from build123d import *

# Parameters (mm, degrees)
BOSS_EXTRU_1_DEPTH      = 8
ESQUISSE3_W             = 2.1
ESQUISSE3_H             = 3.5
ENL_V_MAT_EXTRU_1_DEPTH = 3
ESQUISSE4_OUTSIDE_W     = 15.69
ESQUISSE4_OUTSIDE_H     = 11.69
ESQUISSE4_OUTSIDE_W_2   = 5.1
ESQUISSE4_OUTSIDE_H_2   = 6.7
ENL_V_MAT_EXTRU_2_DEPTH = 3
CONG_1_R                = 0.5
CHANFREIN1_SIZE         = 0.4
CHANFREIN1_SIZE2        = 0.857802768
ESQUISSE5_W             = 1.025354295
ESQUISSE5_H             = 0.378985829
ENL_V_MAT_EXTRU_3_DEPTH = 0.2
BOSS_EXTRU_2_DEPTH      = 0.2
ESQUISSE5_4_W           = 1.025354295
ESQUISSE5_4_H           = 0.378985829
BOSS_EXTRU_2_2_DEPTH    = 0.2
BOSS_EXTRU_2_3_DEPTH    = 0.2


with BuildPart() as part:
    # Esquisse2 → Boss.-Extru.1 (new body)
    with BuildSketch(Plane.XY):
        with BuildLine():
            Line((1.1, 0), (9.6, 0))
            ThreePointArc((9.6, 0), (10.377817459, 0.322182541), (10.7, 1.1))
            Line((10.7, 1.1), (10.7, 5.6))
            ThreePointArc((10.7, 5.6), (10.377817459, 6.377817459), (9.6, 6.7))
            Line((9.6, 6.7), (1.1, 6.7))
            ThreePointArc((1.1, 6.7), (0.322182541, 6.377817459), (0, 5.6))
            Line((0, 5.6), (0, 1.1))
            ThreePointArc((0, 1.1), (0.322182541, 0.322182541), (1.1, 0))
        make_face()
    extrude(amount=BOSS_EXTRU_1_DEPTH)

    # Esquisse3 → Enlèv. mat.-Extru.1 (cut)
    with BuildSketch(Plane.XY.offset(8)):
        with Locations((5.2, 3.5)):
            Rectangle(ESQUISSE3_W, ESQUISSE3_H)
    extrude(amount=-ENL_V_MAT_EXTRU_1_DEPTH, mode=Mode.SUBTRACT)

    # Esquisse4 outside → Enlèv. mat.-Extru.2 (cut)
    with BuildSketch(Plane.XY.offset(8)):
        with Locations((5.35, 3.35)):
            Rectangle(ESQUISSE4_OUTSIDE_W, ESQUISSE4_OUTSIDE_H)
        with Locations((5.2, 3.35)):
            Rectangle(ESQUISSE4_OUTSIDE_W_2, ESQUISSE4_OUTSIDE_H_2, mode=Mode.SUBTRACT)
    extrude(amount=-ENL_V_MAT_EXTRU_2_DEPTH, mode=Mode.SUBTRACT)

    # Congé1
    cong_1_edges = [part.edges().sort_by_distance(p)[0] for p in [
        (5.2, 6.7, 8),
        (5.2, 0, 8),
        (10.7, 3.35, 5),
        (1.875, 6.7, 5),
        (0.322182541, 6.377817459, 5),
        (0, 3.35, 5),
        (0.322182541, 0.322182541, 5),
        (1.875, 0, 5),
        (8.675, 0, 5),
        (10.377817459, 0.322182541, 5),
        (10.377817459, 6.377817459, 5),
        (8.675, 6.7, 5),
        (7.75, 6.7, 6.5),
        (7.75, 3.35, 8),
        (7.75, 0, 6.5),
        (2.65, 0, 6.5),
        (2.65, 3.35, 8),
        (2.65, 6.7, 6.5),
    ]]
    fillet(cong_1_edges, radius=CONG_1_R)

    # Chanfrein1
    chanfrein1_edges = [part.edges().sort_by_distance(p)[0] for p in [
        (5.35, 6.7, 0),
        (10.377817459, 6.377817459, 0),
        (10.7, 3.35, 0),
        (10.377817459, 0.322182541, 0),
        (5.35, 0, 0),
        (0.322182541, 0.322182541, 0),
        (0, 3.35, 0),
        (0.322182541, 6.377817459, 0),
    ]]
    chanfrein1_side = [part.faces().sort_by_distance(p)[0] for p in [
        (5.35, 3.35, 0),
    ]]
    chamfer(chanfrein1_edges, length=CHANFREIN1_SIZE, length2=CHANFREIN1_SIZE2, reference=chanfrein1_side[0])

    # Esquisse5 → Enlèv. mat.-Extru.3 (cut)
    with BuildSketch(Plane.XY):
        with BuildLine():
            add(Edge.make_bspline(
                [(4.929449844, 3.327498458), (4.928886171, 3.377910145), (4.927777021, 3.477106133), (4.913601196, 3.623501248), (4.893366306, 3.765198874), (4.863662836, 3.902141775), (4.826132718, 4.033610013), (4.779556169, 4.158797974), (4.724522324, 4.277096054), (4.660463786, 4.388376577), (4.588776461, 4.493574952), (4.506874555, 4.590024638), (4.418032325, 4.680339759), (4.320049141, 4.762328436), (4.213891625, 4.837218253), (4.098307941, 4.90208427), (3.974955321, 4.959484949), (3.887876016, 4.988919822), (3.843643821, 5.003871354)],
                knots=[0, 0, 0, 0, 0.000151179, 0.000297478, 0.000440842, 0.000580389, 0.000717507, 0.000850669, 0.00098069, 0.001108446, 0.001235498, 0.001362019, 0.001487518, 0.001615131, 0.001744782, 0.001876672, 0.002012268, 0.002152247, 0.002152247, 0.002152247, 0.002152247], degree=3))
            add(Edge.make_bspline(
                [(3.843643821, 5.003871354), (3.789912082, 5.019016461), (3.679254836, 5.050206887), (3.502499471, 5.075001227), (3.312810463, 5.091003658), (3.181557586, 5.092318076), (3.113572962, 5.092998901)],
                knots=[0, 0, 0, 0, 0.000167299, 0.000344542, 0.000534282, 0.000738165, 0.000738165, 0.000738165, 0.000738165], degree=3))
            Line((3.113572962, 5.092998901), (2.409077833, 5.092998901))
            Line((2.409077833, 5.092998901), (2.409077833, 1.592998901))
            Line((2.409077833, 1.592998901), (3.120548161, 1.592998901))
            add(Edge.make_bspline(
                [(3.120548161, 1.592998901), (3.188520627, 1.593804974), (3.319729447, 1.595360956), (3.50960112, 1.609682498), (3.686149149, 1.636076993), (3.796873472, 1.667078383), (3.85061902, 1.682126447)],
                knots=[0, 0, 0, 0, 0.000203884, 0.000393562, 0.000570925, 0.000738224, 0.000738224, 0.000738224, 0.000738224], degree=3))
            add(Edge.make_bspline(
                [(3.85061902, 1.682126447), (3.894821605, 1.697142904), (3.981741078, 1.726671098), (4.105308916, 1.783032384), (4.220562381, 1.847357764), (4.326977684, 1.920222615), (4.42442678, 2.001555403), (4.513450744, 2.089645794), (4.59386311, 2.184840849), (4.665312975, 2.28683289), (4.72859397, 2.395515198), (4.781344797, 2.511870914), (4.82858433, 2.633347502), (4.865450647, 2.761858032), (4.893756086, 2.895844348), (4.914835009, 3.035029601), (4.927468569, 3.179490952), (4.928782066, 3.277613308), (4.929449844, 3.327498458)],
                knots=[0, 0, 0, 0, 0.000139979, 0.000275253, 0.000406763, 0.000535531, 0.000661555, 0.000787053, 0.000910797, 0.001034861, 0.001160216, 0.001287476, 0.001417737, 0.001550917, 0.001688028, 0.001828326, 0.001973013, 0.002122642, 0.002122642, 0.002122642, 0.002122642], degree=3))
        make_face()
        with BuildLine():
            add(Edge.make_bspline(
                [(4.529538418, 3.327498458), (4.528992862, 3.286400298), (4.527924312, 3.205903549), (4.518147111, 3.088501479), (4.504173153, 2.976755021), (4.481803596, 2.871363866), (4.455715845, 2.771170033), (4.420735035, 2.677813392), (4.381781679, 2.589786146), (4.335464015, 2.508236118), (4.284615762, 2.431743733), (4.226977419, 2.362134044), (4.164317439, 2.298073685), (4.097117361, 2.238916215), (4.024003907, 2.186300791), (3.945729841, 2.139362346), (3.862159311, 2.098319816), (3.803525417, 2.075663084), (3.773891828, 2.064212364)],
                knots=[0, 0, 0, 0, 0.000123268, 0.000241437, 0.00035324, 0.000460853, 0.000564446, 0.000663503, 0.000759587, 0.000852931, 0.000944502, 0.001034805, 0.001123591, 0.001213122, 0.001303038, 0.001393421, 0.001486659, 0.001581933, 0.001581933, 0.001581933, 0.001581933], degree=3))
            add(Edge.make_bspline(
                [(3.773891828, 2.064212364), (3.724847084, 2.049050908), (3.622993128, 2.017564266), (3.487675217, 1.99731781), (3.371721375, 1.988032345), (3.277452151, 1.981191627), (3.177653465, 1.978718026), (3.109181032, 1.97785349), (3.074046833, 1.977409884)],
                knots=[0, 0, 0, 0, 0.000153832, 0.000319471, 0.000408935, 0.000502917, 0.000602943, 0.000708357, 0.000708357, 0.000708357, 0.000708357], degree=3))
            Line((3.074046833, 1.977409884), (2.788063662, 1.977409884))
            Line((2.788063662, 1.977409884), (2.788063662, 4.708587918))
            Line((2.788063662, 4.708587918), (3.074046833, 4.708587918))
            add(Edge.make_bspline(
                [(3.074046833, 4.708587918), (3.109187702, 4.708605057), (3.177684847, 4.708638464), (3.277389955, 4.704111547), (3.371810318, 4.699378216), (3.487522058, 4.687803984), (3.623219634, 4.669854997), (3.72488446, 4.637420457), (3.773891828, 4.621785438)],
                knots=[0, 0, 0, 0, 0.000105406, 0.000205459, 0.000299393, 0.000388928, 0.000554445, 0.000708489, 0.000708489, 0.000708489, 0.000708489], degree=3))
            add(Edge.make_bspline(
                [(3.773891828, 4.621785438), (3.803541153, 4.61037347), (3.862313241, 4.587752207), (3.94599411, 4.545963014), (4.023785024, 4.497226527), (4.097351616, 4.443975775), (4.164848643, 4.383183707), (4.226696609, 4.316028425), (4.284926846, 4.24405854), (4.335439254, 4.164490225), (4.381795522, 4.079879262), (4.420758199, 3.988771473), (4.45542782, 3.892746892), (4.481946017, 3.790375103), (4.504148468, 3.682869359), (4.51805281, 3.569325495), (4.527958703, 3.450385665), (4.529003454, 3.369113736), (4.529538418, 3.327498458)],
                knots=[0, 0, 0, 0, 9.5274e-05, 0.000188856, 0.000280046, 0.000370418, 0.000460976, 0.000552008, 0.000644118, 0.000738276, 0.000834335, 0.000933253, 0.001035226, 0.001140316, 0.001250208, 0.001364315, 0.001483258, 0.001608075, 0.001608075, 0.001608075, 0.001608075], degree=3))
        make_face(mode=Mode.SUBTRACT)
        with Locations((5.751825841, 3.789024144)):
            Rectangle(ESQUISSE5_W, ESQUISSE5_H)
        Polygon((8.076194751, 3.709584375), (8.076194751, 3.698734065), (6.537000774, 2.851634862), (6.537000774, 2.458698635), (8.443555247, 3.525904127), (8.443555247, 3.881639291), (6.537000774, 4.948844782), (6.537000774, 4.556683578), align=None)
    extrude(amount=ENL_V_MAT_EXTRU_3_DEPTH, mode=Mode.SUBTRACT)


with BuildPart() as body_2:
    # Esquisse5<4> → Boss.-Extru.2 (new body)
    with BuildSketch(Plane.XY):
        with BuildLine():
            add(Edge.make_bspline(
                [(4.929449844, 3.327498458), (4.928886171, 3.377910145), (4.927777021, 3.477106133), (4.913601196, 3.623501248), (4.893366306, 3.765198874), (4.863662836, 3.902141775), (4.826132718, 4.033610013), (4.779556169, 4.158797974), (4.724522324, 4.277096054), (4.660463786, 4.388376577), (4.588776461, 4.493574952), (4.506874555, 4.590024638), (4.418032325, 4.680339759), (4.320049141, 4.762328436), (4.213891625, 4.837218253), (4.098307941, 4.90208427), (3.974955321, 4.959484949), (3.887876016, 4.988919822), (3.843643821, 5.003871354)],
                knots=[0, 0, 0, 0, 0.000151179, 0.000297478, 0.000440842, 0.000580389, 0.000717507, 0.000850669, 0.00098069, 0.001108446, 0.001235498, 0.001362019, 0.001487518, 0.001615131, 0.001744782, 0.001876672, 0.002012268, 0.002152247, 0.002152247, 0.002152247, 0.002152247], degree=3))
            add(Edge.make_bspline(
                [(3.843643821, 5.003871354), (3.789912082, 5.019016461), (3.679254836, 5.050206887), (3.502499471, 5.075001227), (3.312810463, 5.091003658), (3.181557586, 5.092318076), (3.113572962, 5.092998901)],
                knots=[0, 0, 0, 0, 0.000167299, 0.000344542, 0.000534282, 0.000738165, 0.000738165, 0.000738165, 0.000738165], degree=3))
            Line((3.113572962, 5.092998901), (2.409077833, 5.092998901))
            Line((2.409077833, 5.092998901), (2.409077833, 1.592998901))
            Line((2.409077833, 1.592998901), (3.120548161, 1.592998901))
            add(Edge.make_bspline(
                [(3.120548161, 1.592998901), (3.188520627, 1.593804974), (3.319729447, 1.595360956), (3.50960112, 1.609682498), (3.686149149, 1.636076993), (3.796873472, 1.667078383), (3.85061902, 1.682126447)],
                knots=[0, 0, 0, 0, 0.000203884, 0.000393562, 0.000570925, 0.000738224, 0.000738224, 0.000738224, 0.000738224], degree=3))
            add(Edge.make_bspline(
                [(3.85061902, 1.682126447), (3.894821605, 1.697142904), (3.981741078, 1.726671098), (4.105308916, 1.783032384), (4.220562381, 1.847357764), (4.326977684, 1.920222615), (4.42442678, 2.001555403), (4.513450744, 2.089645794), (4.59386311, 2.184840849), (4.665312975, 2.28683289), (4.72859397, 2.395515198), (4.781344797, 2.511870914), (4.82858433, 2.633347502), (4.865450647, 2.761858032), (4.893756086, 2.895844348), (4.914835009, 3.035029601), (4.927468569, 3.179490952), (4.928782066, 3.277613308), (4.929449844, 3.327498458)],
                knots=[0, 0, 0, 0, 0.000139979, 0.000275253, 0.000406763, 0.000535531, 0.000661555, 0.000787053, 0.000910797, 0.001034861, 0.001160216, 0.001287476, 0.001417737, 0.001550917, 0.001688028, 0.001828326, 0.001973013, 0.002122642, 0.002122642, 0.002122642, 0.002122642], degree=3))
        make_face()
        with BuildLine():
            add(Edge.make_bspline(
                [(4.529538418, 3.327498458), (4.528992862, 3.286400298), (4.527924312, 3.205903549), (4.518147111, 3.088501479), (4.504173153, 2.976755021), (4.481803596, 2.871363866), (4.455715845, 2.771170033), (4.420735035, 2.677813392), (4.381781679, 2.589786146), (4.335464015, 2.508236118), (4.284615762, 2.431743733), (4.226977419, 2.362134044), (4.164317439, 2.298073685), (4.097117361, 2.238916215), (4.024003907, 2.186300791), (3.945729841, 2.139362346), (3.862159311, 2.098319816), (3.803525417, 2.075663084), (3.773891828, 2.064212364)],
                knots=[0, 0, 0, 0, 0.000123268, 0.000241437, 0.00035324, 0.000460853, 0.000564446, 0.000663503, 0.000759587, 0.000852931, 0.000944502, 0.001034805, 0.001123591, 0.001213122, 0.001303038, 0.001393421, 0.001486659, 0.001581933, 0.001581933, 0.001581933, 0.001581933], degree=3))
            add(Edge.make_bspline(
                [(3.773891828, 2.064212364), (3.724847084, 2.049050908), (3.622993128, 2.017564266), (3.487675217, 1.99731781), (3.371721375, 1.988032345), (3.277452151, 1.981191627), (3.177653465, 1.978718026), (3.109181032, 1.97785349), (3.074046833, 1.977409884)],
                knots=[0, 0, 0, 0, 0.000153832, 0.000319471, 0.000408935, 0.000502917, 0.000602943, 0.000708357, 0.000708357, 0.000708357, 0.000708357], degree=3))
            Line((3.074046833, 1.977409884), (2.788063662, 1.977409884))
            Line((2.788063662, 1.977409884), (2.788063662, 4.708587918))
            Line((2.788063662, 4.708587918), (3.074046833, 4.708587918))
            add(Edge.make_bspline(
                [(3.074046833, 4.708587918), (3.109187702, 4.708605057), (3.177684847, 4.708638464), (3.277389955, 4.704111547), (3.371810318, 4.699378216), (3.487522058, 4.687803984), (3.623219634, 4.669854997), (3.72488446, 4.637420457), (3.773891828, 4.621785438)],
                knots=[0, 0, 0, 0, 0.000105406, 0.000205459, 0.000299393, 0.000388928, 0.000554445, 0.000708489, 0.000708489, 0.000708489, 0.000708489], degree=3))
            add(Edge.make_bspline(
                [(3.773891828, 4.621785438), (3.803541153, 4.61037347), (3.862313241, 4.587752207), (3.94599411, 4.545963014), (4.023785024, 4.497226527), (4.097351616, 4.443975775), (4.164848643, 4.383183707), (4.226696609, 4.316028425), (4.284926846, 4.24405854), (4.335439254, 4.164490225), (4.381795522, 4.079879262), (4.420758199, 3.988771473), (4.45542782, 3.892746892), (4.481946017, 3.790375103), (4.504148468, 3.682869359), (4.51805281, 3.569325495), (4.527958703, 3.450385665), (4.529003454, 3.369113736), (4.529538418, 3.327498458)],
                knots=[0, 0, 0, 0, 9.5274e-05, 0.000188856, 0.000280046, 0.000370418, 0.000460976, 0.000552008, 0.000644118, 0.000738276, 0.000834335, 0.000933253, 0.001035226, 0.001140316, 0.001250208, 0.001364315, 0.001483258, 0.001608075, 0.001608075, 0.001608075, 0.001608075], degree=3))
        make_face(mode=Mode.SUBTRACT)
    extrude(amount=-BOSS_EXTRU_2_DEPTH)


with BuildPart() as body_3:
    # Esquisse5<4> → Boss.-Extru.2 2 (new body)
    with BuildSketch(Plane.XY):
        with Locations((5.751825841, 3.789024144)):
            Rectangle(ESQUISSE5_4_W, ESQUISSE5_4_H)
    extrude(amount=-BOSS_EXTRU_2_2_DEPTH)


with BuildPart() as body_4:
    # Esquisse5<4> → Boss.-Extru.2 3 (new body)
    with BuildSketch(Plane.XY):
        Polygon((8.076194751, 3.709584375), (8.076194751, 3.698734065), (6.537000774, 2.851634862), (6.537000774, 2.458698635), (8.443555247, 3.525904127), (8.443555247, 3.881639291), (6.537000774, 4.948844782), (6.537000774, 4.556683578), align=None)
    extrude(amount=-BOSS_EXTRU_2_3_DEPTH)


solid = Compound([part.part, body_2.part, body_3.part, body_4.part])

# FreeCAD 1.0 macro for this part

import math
import FreeCAD as App
import Part
import Sketcher

V = App.Vector
Q = App.Units.Quantity


def edges_at(feature, points):
    """Names of the edges that pass closest to the given points."""
    edges = feature.Shape.Edges
    near = lambda p: min(range(len(edges)), key=lambda i: edges[i].distToShape(Part.Vertex(*p))[0])
    return sorted({f"Edge{near(p) + 1}" for p in points})


def add_polygon(sketch, points):
    """Adds a closed chain of lines whose ends are joined by coincident constraints."""
    first, n = sketch.GeometryCount, len(points)
    for a, b in zip(points, points[1:] + points[:1]):
        sketch.addGeometry(Part.LineSegment(App.Vector(*a, 0), App.Vector(*b, 0)), False)
    for i in range(n):
        sketch.addConstraint(Sketcher.Constraint("Coincident", first + i, 2, first + (i + 1) % n, 1))

doc = App.newDocument("Part")
body = doc.addObject("PartDesign::Body", "Body")

# Sketch on XY plane
sketch1 = body.newObject("Sketcher::SketchObject", "Sketch")
sketch1.AttachmentSupport = (doc.getObject("XY_Plane"), [""])
sketch1.MapMode = "FlatFace"
sketch1.addGeometry([
    Part.LineSegment(V(1.1, 0, 0), V(9.6, 0, 0)),  # 0
    Part.ArcOfCircle(Part.Circle(V(9.6, 1.1, 0), V(0, 0, 1), 1.1), math.radians(-90), math.radians(0)),  # 1
    Part.LineSegment(V(10.7, 1.1, 0), V(10.7, 5.6, 0)),  # 2
    Part.ArcOfCircle(Part.Circle(V(9.6, 5.6, 0), V(0, 0, 1), 1.1), math.radians(0), math.radians(90)),  # 3
    Part.LineSegment(V(9.6, 6.7, 0), V(1.1, 6.7, 0)),  # 4
    Part.ArcOfCircle(Part.Circle(V(1.1, 5.6, 0), V(0, 0, 1), 1.1), math.radians(90), math.radians(180)),  # 5
    Part.LineSegment(V(0, 5.6, 0), V(0, 1.1, 0)),  # 6
    Part.ArcOfCircle(Part.Circle(V(1.1, 1.1, 0), V(0, 0, 1), 1.1), math.radians(-180), math.radians(-90)),  # 7
], False)
sketch1.addConstraint([
    Sketcher.Constraint("Tangent", 0, 2, 1, 1),
    Sketcher.Constraint("Tangent", 1, 2, 2, 1),
    Sketcher.Constraint("Tangent", 2, 2, 3, 1),
    Sketcher.Constraint("Tangent", 3, 2, 4, 1),
    Sketcher.Constraint("Tangent", 4, 2, 5, 1),
    Sketcher.Constraint("Tangent", 5, 2, 6, 1),
    Sketcher.Constraint("Tangent", 6, 2, 7, 1),
    Sketcher.Constraint("Tangent", 7, 2, 0, 1),
    Sketcher.Constraint("Horizontal", 0),
    Sketcher.Constraint("Vertical", 2),
    Sketcher.Constraint("Horizontal", 4),
    Sketcher.Constraint("Vertical", 6),
    Sketcher.Constraint("Equal", 1, 3),
    Sketcher.Constraint("Equal", 3, 5),
    Sketcher.Constraint("Equal", 5, 7),
    Sketcher.Constraint("PointOnObject", 0, 2, -1),
    Sketcher.Constraint("PointOnObject", 5, 2, -2),
    Sketcher.Constraint("Radius", 1, Q("1.1 mm")),
    Sketcher.Constraint("DistanceX", 0, 1, 0, 2, Q("8.5 mm")),
    Sketcher.Constraint("DistanceY", 2, 1, 2, 2, Q("4.5 mm")),
])
pad1 = body.newObject("PartDesign::Pad", "Pad")
pad1.Profile = sketch1
pad1.Length = 8

# Sketch on XY plane
sketch2 = body.newObject("Sketcher::SketchObject", "Sketch001")
sketch2.AttachmentSupport = (doc.getObject("XY_Plane"), [""])
sketch2.MapMode = "FlatFace"
sketch2.AttachmentOffset = App.Placement(V(0, 0, 8), App.Rotation())
add_polygon(sketch2, [(4.2, 5.2), (4.2, 1.8), (6.2, 1.8), (6.2, 5.2)])  # lines 0-3
sketch2.addConstraint([
    Sketcher.Constraint("Vertical", 0),
    Sketcher.Constraint("Horizontal", 1),
    Sketcher.Constraint("Vertical", 2),
    Sketcher.Constraint("Horizontal", 3),
    Sketcher.Constraint("DistanceX", 1, 1, 1, 2, Q("2.1 mm")),
    Sketcher.Constraint("DistanceY", 0, 2, 0, 1, Q("3.5 mm")),
    Sketcher.Constraint("DistanceX", -1, 1, 0, 2, Q("4.15 mm")),
    Sketcher.Constraint("DistanceY", -1, 1, 0, 2, Q("1.75 mm")),
])
pocket1 = body.newObject("PartDesign::Pocket", "Pocket")
pocket1.Profile = sketch2
pocket1.Length = 3

# Sketch on XY plane
sketch3 = body.newObject("Sketcher::SketchObject", "Sketch002")
sketch3.AttachmentSupport = (doc.getObject("XY_Plane"), [""])
sketch3.MapMode = "FlatFace"
sketch3.AttachmentOffset = App.Placement(V(0, 0, 8), App.Rotation())
add_polygon(sketch3, [(-2, 9), (-2, -2), (13, -2), (13, 9)])  # lines 0-3
add_polygon(sketch3, [(8, 0), (3, 0), (3, 7), (8, 7)])  # lines 4-7
sketch3.addConstraint([
    Sketcher.Constraint("Vertical", 0),
    Sketcher.Constraint("Horizontal", 1),
    Sketcher.Constraint("Vertical", 2),
    Sketcher.Constraint("Horizontal", 3),
    Sketcher.Constraint("Horizontal", 4),
    Sketcher.Constraint("Vertical", 5),
    Sketcher.Constraint("Horizontal", 6),
    Sketcher.Constraint("Vertical", 7),
    Sketcher.Constraint("PointOnObject", 4, 2, -1),
    Sketcher.Constraint("DistanceX", 4, 2, 4, 1, Q("5.1 mm")),
    Sketcher.Constraint("DistanceY", 5, 1, 5, 2, Q("6.7 mm")),
    Sketcher.Constraint("DistanceX", 1, 1, 1, 2, Q("15.69 mm")),
    Sketcher.Constraint("DistanceY", 0, 2, 0, 1, Q("11.69 mm")),
    Sketcher.Constraint("DistanceX", -1, 1, 4, 2, Q("2.65 mm")),
    Sketcher.Constraint("DistanceX", 0, 2, -1, 1, Q("2.495 mm")),
    Sketcher.Constraint("DistanceY", 0, 2, -1, 1, Q("2.495 mm")),
])
pocket2 = body.newObject("PartDesign::Pocket", "Pocket001")
pocket2.Profile = sketch3
pocket2.Length = 3
doc.recompute()

fillet = body.newObject("PartDesign::Fillet", "Fillet")
fillet.Base = (pocket2, edges_at(pocket2, [
    (5.2, 6.7, 8),
    (5.2, 0, 8),
    (10.7, 3.35, 5),
    (1.875, 6.7, 5),
    (0.322, 6.378, 5),
    (0, 3.35, 5),
    (0.322, 0.322, 5),
    (1.875, 0, 5),
    (8.675, 0, 5),
    (10.378, 0.322, 5),
    (10.378, 6.378, 5),
    (8.675, 6.7, 5),
    (7.75, 6.7, 6.5),
    (7.75, 3.35, 8),
    (7.75, 0, 6.5),
    (2.65, 0, 6.5),
    (2.65, 3.35, 8),
    (2.65, 6.7, 6.5),
]))
fillet.Radius = 0.5
doc.recompute()

chamfer = body.newObject("PartDesign::Chamfer", "Chamfer")
chamfer.Base = (fillet, edges_at(fillet, [
    (5.35, 6.7, 0),
    (10.378, 6.378, 0),
    (10.7, 3.35, 0),
    (10.378, 0.322, 0),
    (5.35, 0, 0),
    (0.322, 0.322, 0),
    (0, 3.35, 0),
    (0.322, 6.378, 0),
]))
chamfer.ChamferType = "Two distances"
chamfer.Size = 0.4
chamfer.Size2 = 0.857803

# Sketch on XY plane
sketch4 = body.newObject("Sketcher::SketchObject", "Sketch003")
sketch4.AttachmentSupport = (doc.getObject("XY_Plane"), [""])
sketch4.MapMode = "FlatFace"
sketch4.addGeometry(Part.BSplineCurve([V(4.92945, 3.327498, 0), V(4.928886, 3.37791, 0), V(4.927777, 3.477106, 0), V(4.913601, 3.623501, 0), V(4.893366, 3.765199, 0), V(4.863663, 3.902142, 0), V(4.826133, 4.03361, 0), V(4.779556, 4.158798, 0), V(4.724522, 4.277096, 0), V(4.660464, 4.388377, 0), V(4.588776, 4.493575, 0), V(4.506875, 4.590025, 0), V(4.418032, 4.68034, 0), V(4.320049, 4.762328, 0), V(4.213892, 4.837218, 0), V(4.098308, 4.902084, 0), V(3.974955, 4.959485, 0), V(3.887876, 4.98892, 0), V(3.843644, 5.003871, 0)], [4, 1, 1, 1, 1, 1, 1, 1, 1, 1, 1, 1, 1, 1, 1, 1, 4], [0, 0.000151179, 0.000297478, 0.000440842, 0.000580389, 0.000717507, 0.000850669, 0.00098069, 0.001108446, 0.001235498, 0.001362019, 0.001487518, 0.001615131, 0.001744782, 0.001876672, 0.002012268, 0.002152247], False, 3, [1, 1, 1, 1, 1, 1, 1, 1, 1, 1, 1, 1, 1, 1, 1, 1, 1, 1, 1], False), False)  # 0
sketch4.addGeometry(Part.BSplineCurve([V(3.843644, 5.003871, 0), V(3.789912, 5.019016, 0), V(3.679255, 5.050207, 0), V(3.502499, 5.075001, 0), V(3.31281, 5.091004, 0), V(3.181558, 5.092318, 0), V(3.113573, 5.092999, 0)], [4, 1, 1, 1, 4], [0, 0.000167299, 0.000344542, 0.000534282, 0.000738165], False, 3, [1, 1, 1, 1, 1, 1, 1], False), False)  # 1
sketch4.addGeometry(Part.LineSegment(V(3.113573, 5.092999, 0), V(2.409078, 5.092999, 0)), False)  # 2
sketch4.addGeometry(Part.LineSegment(V(2.409078, 5.092999, 0), V(2.409078, 1.592999, 0)), False)  # 3
sketch4.addGeometry(Part.LineSegment(V(2.409078, 1.592999, 0), V(3.120548, 1.592999, 0)), False)  # 4
sketch4.addGeometry(Part.BSplineCurve([V(3.120548, 1.592999, 0), V(3.188521, 1.593805, 0), V(3.319729, 1.595361, 0), V(3.509601, 1.609682, 0), V(3.686149, 1.636077, 0), V(3.796873, 1.667078, 0), V(3.850619, 1.682126, 0)], [4, 1, 1, 1, 4], [0, 0.000203884, 0.000393562, 0.000570925, 0.000738224], False, 3, [1, 1, 1, 1, 1, 1, 1], False), False)  # 5
sketch4.addGeometry(Part.BSplineCurve([V(3.850619, 1.682126, 0), V(3.894822, 1.697143, 0), V(3.981741, 1.726671, 0), V(4.105309, 1.783032, 0), V(4.220562, 1.847358, 0), V(4.326978, 1.920223, 0), V(4.424427, 2.001555, 0), V(4.513451, 2.089646, 0), V(4.593863, 2.184841, 0), V(4.665313, 2.286833, 0), V(4.728594, 2.395515, 0), V(4.781345, 2.511871, 0), V(4.828584, 2.633348, 0), V(4.865451, 2.761858, 0), V(4.893756, 2.895844, 0), V(4.914835, 3.03503, 0), V(4.927469, 3.179491, 0), V(4.928782, 3.277613, 0), V(4.92945, 3.327498, 0)], [4, 1, 1, 1, 1, 1, 1, 1, 1, 1, 1, 1, 1, 1, 1, 1, 4], [0, 0.000139979, 0.000275253, 0.000406763, 0.000535531, 0.000661555, 0.000787053, 0.000910797, 0.001034861, 0.001160216, 0.001287476, 0.001417737, 0.001550917, 0.001688028, 0.001828326, 0.001973013, 0.002122642], False, 3, [1, 1, 1, 1, 1, 1, 1, 1, 1, 1, 1, 1, 1, 1, 1, 1, 1, 1, 1], False), False)  # 6
sketch4.addGeometry(Part.BSplineCurve([V(3.773892, 4.621785, 0), V(3.803541, 4.610373, 0), V(3.862313, 4.587752, 0), V(3.945994, 4.545963, 0), V(4.023785, 4.497227, 0), V(4.097352, 4.443976, 0), V(4.164849, 4.383184, 0), V(4.226697, 4.316028, 0), V(4.284927, 4.244059, 0), V(4.335439, 4.16449, 0), V(4.381796, 4.079879, 0), V(4.420758, 3.988771, 0), V(4.455428, 3.892747, 0), V(4.481946, 3.790375, 0), V(4.504148, 3.682869, 0), V(4.518053, 3.569325, 0), V(4.527959, 3.450386, 0), V(4.529003, 3.369114, 0), V(4.529538, 3.327498, 0)], [4, 1, 1, 1, 1, 1, 1, 1, 1, 1, 1, 1, 1, 1, 1, 1, 4], [0, 0.000095274, 0.000188856, 0.000280046, 0.000370418, 0.000460976, 0.000552008, 0.000644118, 0.000738276, 0.000834335, 0.000933253, 0.001035226, 0.001140316, 0.001250208, 0.001364315, 0.001483258, 0.001608075], False, 3, [1, 1, 1, 1, 1, 1, 1, 1, 1, 1, 1, 1, 1, 1, 1, 1, 1, 1, 1], False), False)  # 7
sketch4.addGeometry(Part.BSplineCurve([V(4.529538, 3.327498, 0), V(4.528993, 3.2864, 0), V(4.527924, 3.205904, 0), V(4.518147, 3.088501, 0), V(4.504173, 2.976755, 0), V(4.481804, 2.871364, 0), V(4.455716, 2.77117, 0), V(4.420735, 2.677813, 0), V(4.381782, 2.589786, 0), V(4.335464, 2.508236, 0), V(4.284616, 2.431744, 0), V(4.226977, 2.362134, 0), V(4.164317, 2.298074, 0), V(4.097117, 2.238916, 0), V(4.024004, 2.186301, 0), V(3.94573, 2.139362, 0), V(3.862159, 2.09832, 0), V(3.803525, 2.075663, 0), V(3.773892, 2.064212, 0)], [4, 1, 1, 1, 1, 1, 1, 1, 1, 1, 1, 1, 1, 1, 1, 1, 4], [0, 0.000123268, 0.000241437, 0.00035324, 0.000460853, 0.000564446, 0.000663503, 0.000759587, 0.000852931, 0.000944502, 0.001034805, 0.001123591, 0.001213122, 0.001303038, 0.001393421, 0.001486659, 0.001581933], False, 3, [1, 1, 1, 1, 1, 1, 1, 1, 1, 1, 1, 1, 1, 1, 1, 1, 1, 1, 1], False), False)  # 8
sketch4.addGeometry(Part.BSplineCurve([V(3.773892, 2.064212, 0), V(3.724847, 2.049051, 0), V(3.622993, 2.017564, 0), V(3.487675, 1.997318, 0), V(3.371721, 1.988032, 0), V(3.277452, 1.981192, 0), V(3.177653, 1.978718, 0), V(3.109181, 1.977853, 0), V(3.074047, 1.97741, 0)], [4, 1, 1, 1, 1, 1, 4], [0, 0.000153832, 0.000319471, 0.000408935, 0.000502917, 0.000602943, 0.000708357], False, 3, [1, 1, 1, 1, 1, 1, 1, 1, 1], False), False)  # 9
sketch4.addGeometry(Part.LineSegment(V(3.074047, 1.97741, 0), V(2.788064, 1.97741, 0)), False)  # 10
sketch4.addGeometry(Part.LineSegment(V(2.788064, 1.97741, 0), V(2.788064, 4.708588, 0)), False)  # 11
sketch4.addGeometry(Part.LineSegment(V(2.788064, 4.708588, 0), V(3.074047, 4.708588, 0)), False)  # 12
sketch4.addGeometry(Part.BSplineCurve([V(3.074047, 4.708588, 0), V(3.109188, 4.708605, 0), V(3.177685, 4.708638, 0), V(3.27739, 4.704112, 0), V(3.37181, 4.699378, 0), V(3.487522, 4.687804, 0), V(3.62322, 4.669855, 0), V(3.724884, 4.63742, 0), V(3.773892, 4.621785, 0)], [4, 1, 1, 1, 1, 1, 4], [0, 0.000105406, 0.000205459, 0.000299393, 0.000388928, 0.000554445, 0.000708489], False, 3, [1, 1, 1, 1, 1, 1, 1, 1, 1], False), False)  # 13
add_polygon(sketch4, [(5.239149, 3.978517), (5.239149, 3.599531), (6.264503, 3.599531), (6.264503, 3.978517)])  # lines 14-17
add_polygon(sketch4, [(8.076195, 3.709584), (8.076195, 3.698734), (6.537001, 2.851635), (6.537001, 2.458699), (8.443555, 3.525904), (8.443555, 3.881639), (6.537001, 4.948845), (6.537001, 4.556684)])  # lines 18-25
sketch4.addConstraint([
    Sketcher.Constraint("Block", 0),
    Sketcher.Constraint("Block", 1),
    Sketcher.Constraint("Block", 5),
    Sketcher.Constraint("Block", 6),
    Sketcher.Constraint("Block", 7),
    Sketcher.Constraint("Block", 8),
    Sketcher.Constraint("Block", 9),
    Sketcher.Constraint("Block", 13),
    Sketcher.Constraint("Coincident", 1, 2, 2, 1),
    Sketcher.Constraint("Coincident", 2, 2, 3, 1),
    Sketcher.Constraint("Coincident", 3, 2, 4, 1),
    Sketcher.Constraint("Coincident", 4, 2, 5, 1),
    Sketcher.Constraint("Coincident", 9, 2, 10, 1),
    Sketcher.Constraint("Coincident", 10, 2, 11, 1),
    Sketcher.Constraint("Coincident", 11, 2, 12, 1),
    Sketcher.Constraint("Coincident", 12, 2, 13, 1),
    Sketcher.Constraint("Horizontal", 2),
    Sketcher.Constraint("Vertical", 3),
    Sketcher.Constraint("Horizontal", 4),
    Sketcher.Constraint("Horizontal", 10),
    Sketcher.Constraint("Vertical", 11),
    Sketcher.Constraint("Horizontal", 12),
    Sketcher.Constraint("Vertical", 14),
    Sketcher.Constraint("Horizontal", 15),
    Sketcher.Constraint("Vertical", 16),
    Sketcher.Constraint("Horizontal", 17),
    Sketcher.Constraint("Vertical", 18),
    Sketcher.Constraint("Vertical", 20),
    Sketcher.Constraint("Vertical", 22),
    Sketcher.Constraint("Vertical", 24),
    Sketcher.Constraint("Vertical", 20, 2, 23, 2),
    Sketcher.Constraint("Equal", 21, 23),
    Sketcher.Constraint("Equal", 19, 25),
    Sketcher.Constraint("DistanceX", -1, 1, 19, 2, Q("6.537001 mm")),
    Sketcher.Constraint("Distance", 19, Q("1.756899 mm")),
    Sketcher.Constraint("DistanceX", 4, 1, 4, 2, Q("0.71147 mm")),
    Sketcher.Constraint("DistanceY", 18, 2, 18, 1, Q("0.01085 mm")),
    Sketcher.Constraint("DistanceY", 24, 2, 24, 1, Q("0.392161 mm")),
    Sketcher.Constraint("DistanceY", -1, 1, 20, 2, Q("2.458699 mm")),
    Sketcher.Constraint("DistanceX", 12, 2, 14, 2, Q("2.165102 mm")),
    Sketcher.Constraint("DistanceY", 19, 2, 18, 2, Q("0.847099 mm")),
    Sketcher.Constraint("Distance", 21, Q("2.18492 mm")),
    Sketcher.Constraint("DistanceX", 10, 2, 10, 1, Q("0.285983 mm")),
    Sketcher.Constraint("DistanceX", 15, 1, 15, 2, Q("1.025354 mm")),
    Sketcher.Constraint("DistanceY", 14, 2, 14, 1, Q("0.378986 mm")),
    Sketcher.Constraint("DistanceY", 20, 2, 20, 1, Q("0.392936 mm")),
    Sketcher.Constraint("DistanceY", 22, 1, 22, 2, Q("0.355735 mm")),
    Sketcher.Constraint("DistanceY", -1, 1, 14, 2, Q("3.599531 mm")),
])
pocket3 = body.newObject("PartDesign::Pocket", "Pocket002")
pocket3.Profile = sketch4
pocket3.Length = 0.2
pocket3.Reversed = True
body2 = doc.addObject("PartDesign::Body", "Body001")

# Sketch on XY plane
sketch5 = body2.newObject("Sketcher::SketchObject", "Sketch004")
sketch5.AttachmentSupport = (doc.getObject("XY_Plane001"), [""])
sketch5.MapMode = "FlatFace"
sketch5.addGeometry([
    Part.BSplineCurve([V(4.92945, 3.327498, 0), V(4.928886, 3.37791, 0), V(4.927777, 3.477106, 0), V(4.913601, 3.623501, 0), V(4.893366, 3.765199, 0), V(4.863663, 3.902142, 0), V(4.826133, 4.03361, 0), V(4.779556, 4.158798, 0), V(4.724522, 4.277096, 0), V(4.660464, 4.388377, 0), V(4.588776, 4.493575, 0), V(4.506875, 4.590025, 0), V(4.418032, 4.68034, 0), V(4.320049, 4.762328, 0), V(4.213892, 4.837218, 0), V(4.098308, 4.902084, 0), V(3.974955, 4.959485, 0), V(3.887876, 4.98892, 0), V(3.843644, 5.003871, 0)], [4, 1, 1, 1, 1, 1, 1, 1, 1, 1, 1, 1, 1, 1, 1, 1, 4], [0, 0.000151179, 0.000297478, 0.000440842, 0.000580389, 0.000717507, 0.000850669, 0.00098069, 0.001108446, 0.001235498, 0.001362019, 0.001487518, 0.001615131, 0.001744782, 0.001876672, 0.002012268, 0.002152247], False, 3, [1, 1, 1, 1, 1, 1, 1, 1, 1, 1, 1, 1, 1, 1, 1, 1, 1, 1, 1], False),  # 0
    Part.BSplineCurve([V(3.843644, 5.003871, 0), V(3.789912, 5.019016, 0), V(3.679255, 5.050207, 0), V(3.502499, 5.075001, 0), V(3.31281, 5.091004, 0), V(3.181558, 5.092318, 0), V(3.113573, 5.092999, 0)], [4, 1, 1, 1, 4], [0, 0.000167299, 0.000344542, 0.000534282, 0.000738165], False, 3, [1, 1, 1, 1, 1, 1, 1], False),  # 1
    Part.LineSegment(V(3.113573, 5.092999, 0), V(2.409078, 5.092999, 0)),  # 2
    Part.LineSegment(V(2.409078, 5.092999, 0), V(2.409078, 1.592999, 0)),  # 3
    Part.LineSegment(V(2.409078, 1.592999, 0), V(3.120548, 1.592999, 0)),  # 4
    Part.BSplineCurve([V(3.120548, 1.592999, 0), V(3.188521, 1.593805, 0), V(3.319729, 1.595361, 0), V(3.509601, 1.609682, 0), V(3.686149, 1.636077, 0), V(3.796873, 1.667078, 0), V(3.850619, 1.682126, 0)], [4, 1, 1, 1, 4], [0, 0.000203884, 0.000393562, 0.000570925, 0.000738224], False, 3, [1, 1, 1, 1, 1, 1, 1], False),  # 5
    Part.BSplineCurve([V(3.850619, 1.682126, 0), V(3.894822, 1.697143, 0), V(3.981741, 1.726671, 0), V(4.105309, 1.783032, 0), V(4.220562, 1.847358, 0), V(4.326978, 1.920223, 0), V(4.424427, 2.001555, 0), V(4.513451, 2.089646, 0), V(4.593863, 2.184841, 0), V(4.665313, 2.286833, 0), V(4.728594, 2.395515, 0), V(4.781345, 2.511871, 0), V(4.828584, 2.633348, 0), V(4.865451, 2.761858, 0), V(4.893756, 2.895844, 0), V(4.914835, 3.03503, 0), V(4.927469, 3.179491, 0), V(4.928782, 3.277613, 0), V(4.92945, 3.327498, 0)], [4, 1, 1, 1, 1, 1, 1, 1, 1, 1, 1, 1, 1, 1, 1, 1, 4], [0, 0.000139979, 0.000275253, 0.000406763, 0.000535531, 0.000661555, 0.000787053, 0.000910797, 0.001034861, 0.001160216, 0.001287476, 0.001417737, 0.001550917, 0.001688028, 0.001828326, 0.001973013, 0.002122642], False, 3, [1, 1, 1, 1, 1, 1, 1, 1, 1, 1, 1, 1, 1, 1, 1, 1, 1, 1, 1], False),  # 6
    Part.BSplineCurve([V(3.773892, 4.621785, 0), V(3.803541, 4.610373, 0), V(3.862313, 4.587752, 0), V(3.945994, 4.545963, 0), V(4.023785, 4.497227, 0), V(4.097352, 4.443976, 0), V(4.164849, 4.383184, 0), V(4.226697, 4.316028, 0), V(4.284927, 4.244059, 0), V(4.335439, 4.16449, 0), V(4.381796, 4.079879, 0), V(4.420758, 3.988771, 0), V(4.455428, 3.892747, 0), V(4.481946, 3.790375, 0), V(4.504148, 3.682869, 0), V(4.518053, 3.569325, 0), V(4.527959, 3.450386, 0), V(4.529003, 3.369114, 0), V(4.529538, 3.327498, 0)], [4, 1, 1, 1, 1, 1, 1, 1, 1, 1, 1, 1, 1, 1, 1, 1, 4], [0, 0.000095274, 0.000188856, 0.000280046, 0.000370418, 0.000460976, 0.000552008, 0.000644118, 0.000738276, 0.000834335, 0.000933253, 0.001035226, 0.001140316, 0.001250208, 0.001364315, 0.001483258, 0.001608075], False, 3, [1, 1, 1, 1, 1, 1, 1, 1, 1, 1, 1, 1, 1, 1, 1, 1, 1, 1, 1], False),  # 7
    Part.BSplineCurve([V(4.529538, 3.327498, 0), V(4.528993, 3.2864, 0), V(4.527924, 3.205904, 0), V(4.518147, 3.088501, 0), V(4.504173, 2.976755, 0), V(4.481804, 2.871364, 0), V(4.455716, 2.77117, 0), V(4.420735, 2.677813, 0), V(4.381782, 2.589786, 0), V(4.335464, 2.508236, 0), V(4.284616, 2.431744, 0), V(4.226977, 2.362134, 0), V(4.164317, 2.298074, 0), V(4.097117, 2.238916, 0), V(4.024004, 2.186301, 0), V(3.94573, 2.139362, 0), V(3.862159, 2.09832, 0), V(3.803525, 2.075663, 0), V(3.773892, 2.064212, 0)], [4, 1, 1, 1, 1, 1, 1, 1, 1, 1, 1, 1, 1, 1, 1, 1, 4], [0, 0.000123268, 0.000241437, 0.00035324, 0.000460853, 0.000564446, 0.000663503, 0.000759587, 0.000852931, 0.000944502, 0.001034805, 0.001123591, 0.001213122, 0.001303038, 0.001393421, 0.001486659, 0.001581933], False, 3, [1, 1, 1, 1, 1, 1, 1, 1, 1, 1, 1, 1, 1, 1, 1, 1, 1, 1, 1], False),  # 8
    Part.BSplineCurve([V(3.773892, 2.064212, 0), V(3.724847, 2.049051, 0), V(3.622993, 2.017564, 0), V(3.487675, 1.997318, 0), V(3.371721, 1.988032, 0), V(3.277452, 1.981192, 0), V(3.177653, 1.978718, 0), V(3.109181, 1.977853, 0), V(3.074047, 1.97741, 0)], [4, 1, 1, 1, 1, 1, 4], [0, 0.000153832, 0.000319471, 0.000408935, 0.000502917, 0.000602943, 0.000708357], False, 3, [1, 1, 1, 1, 1, 1, 1, 1, 1], False),  # 9
    Part.LineSegment(V(3.074047, 1.97741, 0), V(2.788064, 1.97741, 0)),  # 10
    Part.LineSegment(V(2.788064, 1.97741, 0), V(2.788064, 4.708588, 0)),  # 11
    Part.LineSegment(V(2.788064, 4.708588, 0), V(3.074047, 4.708588, 0)),  # 12
    Part.BSplineCurve([V(3.074047, 4.708588, 0), V(3.109188, 4.708605, 0), V(3.177685, 4.708638, 0), V(3.27739, 4.704112, 0), V(3.37181, 4.699378, 0), V(3.487522, 4.687804, 0), V(3.62322, 4.669855, 0), V(3.724884, 4.63742, 0), V(3.773892, 4.621785, 0)], [4, 1, 1, 1, 1, 1, 4], [0, 0.000105406, 0.000205459, 0.000299393, 0.000388928, 0.000554445, 0.000708489], False, 3, [1, 1, 1, 1, 1, 1, 1, 1, 1], False),  # 13
], False)
sketch5.addConstraint([
    Sketcher.Constraint("Block", 0),
    Sketcher.Constraint("Block", 1),
    Sketcher.Constraint("Block", 5),
    Sketcher.Constraint("Block", 6),
    Sketcher.Constraint("Block", 7),
    Sketcher.Constraint("Block", 8),
    Sketcher.Constraint("Block", 9),
    Sketcher.Constraint("Block", 13),
    Sketcher.Constraint("Coincident", 1, 2, 2, 1),
    Sketcher.Constraint("Coincident", 2, 2, 3, 1),
    Sketcher.Constraint("Coincident", 3, 2, 4, 1),
    Sketcher.Constraint("Coincident", 4, 2, 5, 1),
    Sketcher.Constraint("Coincident", 9, 2, 10, 1),
    Sketcher.Constraint("Coincident", 10, 2, 11, 1),
    Sketcher.Constraint("Coincident", 11, 2, 12, 1),
    Sketcher.Constraint("Coincident", 12, 2, 13, 1),
    Sketcher.Constraint("Horizontal", 2),
    Sketcher.Constraint("Vertical", 3),
    Sketcher.Constraint("Horizontal", 4),
    Sketcher.Constraint("Horizontal", 10),
    Sketcher.Constraint("Vertical", 11),
    Sketcher.Constraint("Horizontal", 12),
    Sketcher.Constraint("DistanceX", 4, 1, 4, 2, Q("0.71147 mm")),
    Sketcher.Constraint("DistanceX", 10, 2, 10, 1, Q("0.285983 mm")),
])
pad2 = body2.newObject("PartDesign::Pad", "Pad001")
pad2.Profile = sketch5
pad2.Length = 0.2
pad2.Reversed = True
body3 = doc.addObject("PartDesign::Body", "Body002")

# Sketch on XY plane
sketch6 = body3.newObject("Sketcher::SketchObject", "Sketch005")
sketch6.AttachmentSupport = (doc.getObject("XY_Plane002"), [""])
sketch6.MapMode = "FlatFace"
add_polygon(sketch6, [(5.24, 3.98), (5.24, 3.6), (6.26, 3.6), (6.26, 3.98)])  # lines 0-3
sketch6.addConstraint([
    Sketcher.Constraint("Vertical", 0),
    Sketcher.Constraint("Horizontal", 1),
    Sketcher.Constraint("Vertical", 2),
    Sketcher.Constraint("Horizontal", 3),
    Sketcher.Constraint("DistanceX", 1, 1, 1, 2, Q("1.025354 mm")),
    Sketcher.Constraint("DistanceY", 0, 2, 0, 1, Q("0.378986 mm")),
    Sketcher.Constraint("DistanceX", -1, 1, 0, 2, Q("5.239149 mm")),
    Sketcher.Constraint("DistanceY", -1, 1, 0, 2, Q("3.599531 mm")),
])
pad3 = body3.newObject("PartDesign::Pad", "Pad002")
pad3.Profile = sketch6
pad3.Length = 0.2
pad3.Reversed = True
body4 = doc.addObject("PartDesign::Body", "Body003")

# Sketch on XY plane
sketch7 = body4.newObject("Sketcher::SketchObject", "Sketch006")
sketch7.AttachmentSupport = (doc.getObject("XY_Plane003"), [""])
sketch7.MapMode = "FlatFace"
add_polygon(sketch7, [(8.076, 3.71), (8.076, 3.699), (6.537, 2.852), (6.537, 2.459), (8.444, 3.526), (8.444, 3.882), (6.537, 4.949), (6.537, 4.557)])  # lines 0-7
sketch7.addConstraint([
    Sketcher.Constraint("Vertical", 0),
    Sketcher.Constraint("Vertical", 2),
    Sketcher.Constraint("Vertical", 4),
    Sketcher.Constraint("Vertical", 6),
    Sketcher.Constraint("Vertical", 2, 2, 5, 2),
    Sketcher.Constraint("Equal", 3, 5),
    Sketcher.Constraint("Equal", 1, 7),
    Sketcher.Constraint("DistanceX", -1, 1, 1, 2, Q("6.537001 mm")),
    Sketcher.Constraint("Distance", 1, Q("1.756899 mm")),
    Sketcher.Constraint("DistanceY", 0, 2, 0, 1, Q("0.01085 mm")),
    Sketcher.Constraint("DistanceY", 6, 2, 6, 1, Q("0.392161 mm")),
    Sketcher.Constraint("DistanceY", -1, 1, 2, 2, Q("2.458699 mm")),
    Sketcher.Constraint("DistanceY", 1, 2, 0, 2, Q("0.847099 mm")),
    Sketcher.Constraint("Distance", 3, Q("2.18492 mm")),
    Sketcher.Constraint("DistanceY", 2, 2, 2, 1, Q("0.392936 mm")),
    Sketcher.Constraint("DistanceY", 4, 1, 4, 2, Q("0.355735 mm")),
])
pad4 = body4.newObject("PartDesign::Pad", "Pad003")
pad4.Profile = sketch7
pad4.Length = 0.2
pad4.Reversed = True

doc.recompute()
